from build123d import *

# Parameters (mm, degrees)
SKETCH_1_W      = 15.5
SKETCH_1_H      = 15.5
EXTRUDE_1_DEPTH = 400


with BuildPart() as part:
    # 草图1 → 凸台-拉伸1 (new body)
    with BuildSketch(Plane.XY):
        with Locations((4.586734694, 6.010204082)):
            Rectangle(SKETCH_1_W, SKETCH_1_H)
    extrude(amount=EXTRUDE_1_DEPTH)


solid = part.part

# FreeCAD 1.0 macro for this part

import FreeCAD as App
import Part
import Sketcher

V = App.Vector

doc = App.newDocument("Part")
params = doc.addObject("Spreadsheet::Sheet", "Params")
for row, (alias, value) in enumerate([
    ("sketch1_width", "15.5 mm"),
    ("pad1_length", "400 mm"),
], start=1):
    params.set(f"A{row}", alias)
    params.set(f"B{row}", "=" + value)
    params.setAlias(f"B{row}", alias)

body = doc.addObject("PartDesign::Body", "Body")

# Sketch on XY plane
sketch1 = body.newObject("Sketcher::SketchObject", "Sketch")
sketch1.AttachmentSupport = (doc.getObject("XY_Plane"), [""])
sketch1.MapMode = "FlatFace"
sketch1.addGeometry([
    Part.LineSegment(V(-3, 14, 0), V(-3, -2, 0)),
    Part.LineSegment(V(-3, -2, 0), V(12, -2, 0)),
    Part.LineSegment(V(12, -2, 0), V(12, 14, 0)),
    Part.LineSegment(V(12, 14, 0), V(-3, 14, 0)),
], False)
sketch1.addConstraint([
    Sketcher.Constraint("Coincident", 0, 2, 1, 1),
    Sketcher.Constraint("Coincident", 1, 2, 2, 1),
    Sketcher.Constraint("Coincident", 2, 2, 3, 1),
    Sketcher.Constraint("Coincident", 3, 2, 0, 1),
    Sketcher.Constraint("Vertical", 0),
    Sketcher.Constraint("Horizontal", 1),
    Sketcher.Constraint("Vertical", 2),
    Sketcher.Constraint("Horizontal", 3),
    Sketcher.Constraint("Equal", 3, 0),
    Sketcher.Constraint("DistanceX", 1, 1, 1, 2, 15.5),
    Sketcher.Constraint("DistanceX", 0, 2, -1, 1, 3.163265),
    Sketcher.Constraint("DistanceY", 0, 2, -1, 1, 1.739796),
])
sketch1.setExpression("Constraints[9]", "Params.sketch1_width")
pad1 = body.newObject("PartDesign::Pad", "Pad")
pad1.Profile = sketch1
pad1.setExpression("Length", "Params.pad1_length")

doc.recompute()
